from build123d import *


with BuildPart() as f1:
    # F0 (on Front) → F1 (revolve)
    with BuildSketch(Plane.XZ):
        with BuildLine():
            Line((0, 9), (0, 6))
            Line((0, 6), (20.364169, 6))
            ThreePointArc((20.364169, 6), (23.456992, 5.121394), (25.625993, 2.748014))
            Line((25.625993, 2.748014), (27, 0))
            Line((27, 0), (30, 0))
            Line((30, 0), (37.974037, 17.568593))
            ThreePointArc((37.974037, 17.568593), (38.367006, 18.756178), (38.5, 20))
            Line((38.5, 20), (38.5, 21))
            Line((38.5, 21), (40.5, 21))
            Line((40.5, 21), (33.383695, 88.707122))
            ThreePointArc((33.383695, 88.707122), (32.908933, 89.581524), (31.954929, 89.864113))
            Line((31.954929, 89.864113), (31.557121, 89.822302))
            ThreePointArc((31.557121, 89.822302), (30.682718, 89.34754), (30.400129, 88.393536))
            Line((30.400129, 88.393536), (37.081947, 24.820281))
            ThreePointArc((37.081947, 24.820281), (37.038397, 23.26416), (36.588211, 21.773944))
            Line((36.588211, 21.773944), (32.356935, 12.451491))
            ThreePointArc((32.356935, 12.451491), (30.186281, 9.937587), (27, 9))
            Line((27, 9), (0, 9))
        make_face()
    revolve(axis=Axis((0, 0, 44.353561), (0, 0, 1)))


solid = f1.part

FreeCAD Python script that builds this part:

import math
import FreeCAD as App
import Part
import Sketcher
from FreeCAD import Vector
Q = App.Units.Quantity

doc = App.newDocument("Part")
params = doc.addObject("Spreadsheet::Sheet", "Params")
for row, (alias, value) in enumerate([
    ("sketch1_radius", "1.300001 mm"),
    ("sketch1_width", "3 mm"),
    ("sketch1_width2", "2 mm"),
    ("sketch1_width3", "27 mm"),
    ("sketch1_height", "1 mm"),
    ("revolution_angle", "360 deg"),
], start=1):
    params.set(f"A{row}", alias)
    params.set(f"B{row}", "=" + value)
    params.setAlias(f"B{row}", alias)

body = doc.addObject("PartDesign::Body", "Body")

sketch1 = body.newObject("Sketcher::SketchObject", "Sketch")
sketch1.AttachmentSupport = (doc.getObject("XZ_Plane"), [""])
sketch1.MapMode = "FlatFace"
sketch1.addGeometry([
    Part.LineSegment(Vector(0, 9, 0), Vector(0, 6, 0)),
    Part.LineSegment(Vector(0, 6, 0), Vector(20.36, 6, 0)),
    Part.ArcOfCircle(Part.Circle(Vector(20.36, 0.12, 0), Vector(0, 0, 1), 5.88), math.radians(27), math.radians(90)),
    Part.LineSegment(Vector(25.63, 2.75, 0), Vector(27, 0, 0)),
    Part.LineSegment(Vector(27, 0, 0), Vector(30, 0, 0)),
    Part.LineSegment(Vector(30, 0, 0), Vector(37.97, 17.57, 0)),
    Part.ArcOfCircle(Part.Circle(Vector(32.62, 20, 0), Vector(0, 0, 1), 5.88), math.radians(-24), math.radians(0)),
    Part.LineSegment(Vector(38.5, 20, 0), Vector(38.5, 21, 0)),
    Part.LineSegment(Vector(38.5, 21, 0), Vector(40.5, 21, 0)),
    Part.LineSegment(Vector(40.5, 21, 0), Vector(33.38, 88.71, 0)),
    Part.ArcOfCircle(Part.Circle(Vector(32.09, 88.57, 0), Vector(0, 0, 1), 1.3), math.radians(6), math.radians(96)),
    Part.LineSegment(Vector(31.95, 89.86, 0), Vector(31.56, 89.82, 0)),
    Part.ArcOfCircle(Part.Circle(Vector(31.69, 88.53, 0), Vector(0, 0, 1), 1.3), math.radians(96), math.radians(186)),
    Part.LineSegment(Vector(30.4, 88.39, 0), Vector(37.08, 24.82, 0)),
    Part.ArcOfCircle(Part.Circle(Vector(31.23, 24.21, 0), Vector(0, 0, 1), 5.88), math.radians(-24), math.radians(6)),
    Part.LineSegment(Vector(36.59, 21.77, 0), Vector(32.36, 12.45, 0)),
    Part.ArcOfCircle(Part.Circle(Vector(27, 14.88, 0), Vector(0, 0, 1), 5.88), math.radians(-90), math.radians(-24)),
    Part.LineSegment(Vector(27, 9, 0), Vector(0, 9, 0)),
], False)
sketch1.addConstraint([
    Sketcher.Constraint("Coincident", 0, 2, 1, 1),
    Sketcher.Constraint("Tangent", 1, 2, 2, 2),
    Sketcher.Constraint("Tangent", 2, 1, 3, 1),
    Sketcher.Constraint("Coincident", 3, 2, 4, 1),
    Sketcher.Constraint("Coincident", 4, 2, 5, 1),
    Sketcher.Constraint("Tangent", 5, 2, 6, 1),
    Sketcher.Constraint("Tangent", 6, 2, 7, 1),
    Sketcher.Constraint("Coincident", 7, 2, 8, 1),
    Sketcher.Constraint("Coincident", 8, 2, 9, 1),
    Sketcher.Constraint("Tangent", 9, 2, 10, 1),
    Sketcher.Constraint("Tangent", 10, 2, 11, 1),
    Sketcher.Constraint("Tangent", 11, 2, 12, 1),
    Sketcher.Constraint("Tangent", 12, 2, 13, 1),
    Sketcher.Constraint("Tangent", 13, 2, 14, 2),
    Sketcher.Constraint("Tangent", 14, 1, 15, 1),
    Sketcher.Constraint("Tangent", 15, 2, 16, 2),
    Sketcher.Constraint("Tangent", 16, 1, 17, 1),
    Sketcher.Constraint("Coincident", 17, 2, 0, 1),
    Sketcher.Constraint("Vertical", 0),
    Sketcher.Constraint("Horizontal", 1),
    Sketcher.Constraint("Horizontal", 4),
    Sketcher.Constraint("Vertical", 7),
    Sketcher.Constraint("Horizontal", 8),
    Sketcher.Constraint("Horizontal", 17),
    Sketcher.Constraint("Equal", 10, 12),
    Sketcher.Constraint("PointOnObject", 0, 2, -2),
    Sketcher.Constraint("PointOnObject", 3, 2, -1),
    Sketcher.Constraint("Perpendicular", 9, 11),
    Sketcher.Constraint("Perpendicular", 11, 13),
    Sketcher.Constraint("Parallel", 5, 15),
    Sketcher.Constraint("Vertical", 16, 3, 3, 2),
    Sketcher.Constraint("Equal", 4, 0),
    Sketcher.Constraint("Radius", 10, Q("1.300001 mm")),
    Sketcher.Constraint("DistanceX", 4, 1, 4, 2, Q("3 mm")),
    Sketcher.Constraint("DistanceX", 8, 1, 8, 2, Q("2 mm")),
    Sketcher.Constraint("DistanceX", 17, 2, 17, 1, Q("27 mm")),
    Sketcher.Constraint("DistanceY", 7, 1, 7, 2, Q("1 mm")),
    Sketcher.Constraint("Angle", 9, Q("96 deg")),
    Sketcher.Constraint("DistanceY", -1, 1, 6, 3, Q("20.000001 mm")),
    Sketcher.Constraint("DistanceY", -1, 1, 0, 2, Q("6 mm")),
    Sketcher.Constraint("Distance", 11, Q("0.399999 mm")),
    Sketcher.Constraint("DistanceX", -1, 1, 6, 2, Q("38.5 mm")),
    Sketcher.Constraint("Radius", 16, Q("5.8829 mm")),
    Sketcher.Constraint("Radius", 14, Q("5.88289 mm")),
    Sketcher.Constraint("Radius", 2, Q("5.882896 mm")),
    Sketcher.Constraint("Radius", 6, Q("5.882904 mm")),
    Sketcher.Constraint("DistanceX", 1, 1, 1, 2, Q("20.364169 mm")),
    Sketcher.Constraint("DistanceY", -1, 1, 11, 2, Q("89.822302 mm")),
])
sketch1.setExpression("Constraints[32]", "Params.sketch1_radius")
sketch1.setExpression("Constraints[33]", "Params.sketch1_width")
sketch1.setExpression("Constraints[34]", "Params.sketch1_width2")
sketch1.setExpression("Constraints[35]", "Params.sketch1_width3")
sketch1.setExpression("Constraints[36]", "Params.sketch1_height")
revolution = body.newObject("PartDesign::Revolution", "Revolution")
revolution.Profile = sketch1
revolution.ReferenceAxis = (sketch1, ["V_Axis"])
revolution.setExpression("Angle", "Params.revolution_angle")

doc.recompute()
